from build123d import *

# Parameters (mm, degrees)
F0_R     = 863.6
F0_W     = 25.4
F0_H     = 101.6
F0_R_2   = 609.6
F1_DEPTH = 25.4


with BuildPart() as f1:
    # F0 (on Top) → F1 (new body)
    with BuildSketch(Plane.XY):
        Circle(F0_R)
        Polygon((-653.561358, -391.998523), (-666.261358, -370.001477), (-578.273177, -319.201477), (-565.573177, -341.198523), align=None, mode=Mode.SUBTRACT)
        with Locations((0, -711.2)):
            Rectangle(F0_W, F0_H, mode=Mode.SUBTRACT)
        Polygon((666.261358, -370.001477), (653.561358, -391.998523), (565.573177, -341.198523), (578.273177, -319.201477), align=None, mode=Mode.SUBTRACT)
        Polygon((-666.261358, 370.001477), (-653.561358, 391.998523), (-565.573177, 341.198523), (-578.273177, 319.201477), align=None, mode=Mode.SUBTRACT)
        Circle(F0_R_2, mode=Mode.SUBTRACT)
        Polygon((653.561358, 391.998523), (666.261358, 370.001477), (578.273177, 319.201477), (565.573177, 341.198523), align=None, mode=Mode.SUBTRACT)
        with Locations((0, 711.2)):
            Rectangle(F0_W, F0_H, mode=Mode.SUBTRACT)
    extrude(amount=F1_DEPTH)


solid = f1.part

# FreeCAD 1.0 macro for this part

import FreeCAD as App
import Part
import Sketcher
from FreeCAD import Vector
Q = App.Units.Quantity


def add_polygon(sketch, points):
    """Adds a closed chain of lines whose ends are joined by coincident constraints."""
    first, n = sketch.GeometryCount, len(points)
    for a, b in zip(points, points[1:] + points[:1]):
        sketch.addGeometry(Part.LineSegment(App.Vector(*a, 0), App.Vector(*b, 0)), False)
    for i in range(n):
        sketch.addConstraint(Sketcher.Constraint("Coincident", first + i, 2, first + (i + 1) % n, 1))

doc = App.newDocument("Part")
body = doc.addObject("PartDesign::Body", "Body")

# Sketch on XY plane
sketch1 = body.newObject("Sketcher::SketchObject", "Sketch")
sketch1.AttachmentSupport = (doc.getObject("XY_Plane"), [""])
sketch1.MapMode = "FlatFace"
sketch1.addGeometry(Part.Circle(Vector(0, 0, 0), Vector(0, 0, 1), 863.6), False)  # 0
add_polygon(sketch1, [(-565.573177, -341.198523), (-653.561358, -391.998523), (-666.261358, -370.001477), (-578.273177, -319.201477)])  # lines 1-4
add_polygon(sketch1, [(12.7, -762), (-12.7, -762), (-12.7, -660.4), (12.7, -660.4)])  # lines 5-8
add_polygon(sketch1, [(578.273177, -319.201477), (666.261358, -370.001477), (653.561358, -391.998523), (565.573177, -341.198523)])  # lines 9-12
add_polygon(sketch1, [(-578.273177, 319.201477), (-666.261358, 370.001477), (-653.561358, 391.998523), (-565.573177, 341.198523)])  # lines 13-16
sketch1.addGeometry(Part.Circle(Vector(0, 0, 0), Vector(0, 0, 1), 609.6), False)  # 17
add_polygon(sketch1, [(565.573177, 341.198523), (653.561358, 391.998523), (666.261358, 370.001477), (578.273177, 319.201477)])  # lines 18-21
add_polygon(sketch1, [(12.7, 660.4), (-12.7, 660.4), (-12.7, 762), (12.7, 762)])  # lines 22-25
sketch1.addConstraint(Sketcher.Constraint("Horizontal", 5))
sketch1.addConstraint(Sketcher.Constraint("Vertical", 6))
sketch1.addConstraint(Sketcher.Constraint("Horizontal", 7))
sketch1.addConstraint(Sketcher.Constraint("Vertical", 8))
sketch1.addConstraint(Sketcher.Constraint("Horizontal", 22))
sketch1.addConstraint(Sketcher.Constraint("Vertical", 23))
sketch1.addConstraint(Sketcher.Constraint("Horizontal", 24))
sketch1.addConstraint(Sketcher.Constraint("Vertical", 25))
sketch1.addConstraint(Sketcher.Constraint("Coincident", 0, 3, -1, 1))
sketch1.addConstraint(Sketcher.Constraint("Coincident", 17, 3, -1, 1))
sketch1.addConstraint(Sketcher.Constraint("Symmetric", 9, 2, 13, 2, -1, 1))
sketch1.addConstraint(Sketcher.Constraint("Symmetric", 10, 2, 14, 2, -1, 1))
sketch1.addConstraint(Sketcher.Constraint("Symmetric", 11, 2, 15, 2, -1, 1))
sketch1.addConstraint(Sketcher.Constraint("Symmetric", 12, 2, 16, 2, -1, 1))
sketch1.addConstraint(Sketcher.Constraint("Symmetric", 1, 2, 18, 2, -1, 1))
sketch1.addConstraint(Sketcher.Constraint("Symmetric", 2, 2, 19, 2, -1, 1))
sketch1.addConstraint(Sketcher.Constraint("Symmetric", 3, 2, 20, 2, -1, 1))
sketch1.addConstraint(Sketcher.Constraint("Symmetric", 4, 2, 21, 2, -1, 1))
sketch1.addConstraint(Sketcher.Constraint("Symmetric", 7, 2, 22, 2, -1, 1))
sketch1.addConstraint(Sketcher.Constraint("Symmetric", 5, 2, 24, 2, -1, 1))
sketch1.addConstraint(Sketcher.Constraint("Symmetric", 2, 2, 9, 2, -2))
sketch1.addConstraint(Sketcher.Constraint("Symmetric", 1, 2, 10, 2, -2))
sketch1.addConstraint(Sketcher.Constraint("Symmetric", 4, 2, 11, 2, -2))
sketch1.addConstraint(Sketcher.Constraint("Symmetric", 3, 2, 12, 2, -2))
sketch1.addConstraint(Sketcher.Constraint("Perpendicular", 1, 2))
sketch1.addConstraint(Sketcher.Constraint("Perpendicular", 2, 3))
sketch1.addConstraint(Sketcher.Constraint("Perpendicular", 3, 4))
sketch1.addConstraint(Sketcher.Constraint("Vertical", 6, 2, 22, 2))
sketch1.addConstraint(Sketcher.Constraint("Diameter", 0, Q("68 in")))
sketch1.addConstraint(Sketcher.Constraint("Diameter", 17, Q("48 in")))
sketch1.addConstraint(Sketcher.Constraint("DistanceX", 5, 2, 5, 1, Q("1 in")))
sketch1.addConstraint(Sketcher.Constraint("DistanceY", 6, 1, 6, 2, Q("4 in")))
sketch1.addConstraint(Sketcher.Constraint("Distance", 1, Q("4 in")))
sketch1.addConstraint(Sketcher.Constraint("Distance", 2, Q("1 in")))
sketch1.addConstraint(Sketcher.Constraint("DistanceY", 5, 2, -1, 1, Q("30 in")))
sketch1.addConstraint(Sketcher.Constraint("Angle", 1, Q("-150 deg")))
sketch1.addConstraint(Sketcher.Constraint("DistanceY", 4, 2, 13, 2, Q("28 in")))
sketch1.addConstraint(Sketcher.Constraint("DistanceX", 1, 2, -1, 1, 653.561358))
pad1 = body.newObject("PartDesign::Pad", "Pad")
pad1.Profile = sketch1
pad1.Length = Q("1 in")

doc.recompute()
